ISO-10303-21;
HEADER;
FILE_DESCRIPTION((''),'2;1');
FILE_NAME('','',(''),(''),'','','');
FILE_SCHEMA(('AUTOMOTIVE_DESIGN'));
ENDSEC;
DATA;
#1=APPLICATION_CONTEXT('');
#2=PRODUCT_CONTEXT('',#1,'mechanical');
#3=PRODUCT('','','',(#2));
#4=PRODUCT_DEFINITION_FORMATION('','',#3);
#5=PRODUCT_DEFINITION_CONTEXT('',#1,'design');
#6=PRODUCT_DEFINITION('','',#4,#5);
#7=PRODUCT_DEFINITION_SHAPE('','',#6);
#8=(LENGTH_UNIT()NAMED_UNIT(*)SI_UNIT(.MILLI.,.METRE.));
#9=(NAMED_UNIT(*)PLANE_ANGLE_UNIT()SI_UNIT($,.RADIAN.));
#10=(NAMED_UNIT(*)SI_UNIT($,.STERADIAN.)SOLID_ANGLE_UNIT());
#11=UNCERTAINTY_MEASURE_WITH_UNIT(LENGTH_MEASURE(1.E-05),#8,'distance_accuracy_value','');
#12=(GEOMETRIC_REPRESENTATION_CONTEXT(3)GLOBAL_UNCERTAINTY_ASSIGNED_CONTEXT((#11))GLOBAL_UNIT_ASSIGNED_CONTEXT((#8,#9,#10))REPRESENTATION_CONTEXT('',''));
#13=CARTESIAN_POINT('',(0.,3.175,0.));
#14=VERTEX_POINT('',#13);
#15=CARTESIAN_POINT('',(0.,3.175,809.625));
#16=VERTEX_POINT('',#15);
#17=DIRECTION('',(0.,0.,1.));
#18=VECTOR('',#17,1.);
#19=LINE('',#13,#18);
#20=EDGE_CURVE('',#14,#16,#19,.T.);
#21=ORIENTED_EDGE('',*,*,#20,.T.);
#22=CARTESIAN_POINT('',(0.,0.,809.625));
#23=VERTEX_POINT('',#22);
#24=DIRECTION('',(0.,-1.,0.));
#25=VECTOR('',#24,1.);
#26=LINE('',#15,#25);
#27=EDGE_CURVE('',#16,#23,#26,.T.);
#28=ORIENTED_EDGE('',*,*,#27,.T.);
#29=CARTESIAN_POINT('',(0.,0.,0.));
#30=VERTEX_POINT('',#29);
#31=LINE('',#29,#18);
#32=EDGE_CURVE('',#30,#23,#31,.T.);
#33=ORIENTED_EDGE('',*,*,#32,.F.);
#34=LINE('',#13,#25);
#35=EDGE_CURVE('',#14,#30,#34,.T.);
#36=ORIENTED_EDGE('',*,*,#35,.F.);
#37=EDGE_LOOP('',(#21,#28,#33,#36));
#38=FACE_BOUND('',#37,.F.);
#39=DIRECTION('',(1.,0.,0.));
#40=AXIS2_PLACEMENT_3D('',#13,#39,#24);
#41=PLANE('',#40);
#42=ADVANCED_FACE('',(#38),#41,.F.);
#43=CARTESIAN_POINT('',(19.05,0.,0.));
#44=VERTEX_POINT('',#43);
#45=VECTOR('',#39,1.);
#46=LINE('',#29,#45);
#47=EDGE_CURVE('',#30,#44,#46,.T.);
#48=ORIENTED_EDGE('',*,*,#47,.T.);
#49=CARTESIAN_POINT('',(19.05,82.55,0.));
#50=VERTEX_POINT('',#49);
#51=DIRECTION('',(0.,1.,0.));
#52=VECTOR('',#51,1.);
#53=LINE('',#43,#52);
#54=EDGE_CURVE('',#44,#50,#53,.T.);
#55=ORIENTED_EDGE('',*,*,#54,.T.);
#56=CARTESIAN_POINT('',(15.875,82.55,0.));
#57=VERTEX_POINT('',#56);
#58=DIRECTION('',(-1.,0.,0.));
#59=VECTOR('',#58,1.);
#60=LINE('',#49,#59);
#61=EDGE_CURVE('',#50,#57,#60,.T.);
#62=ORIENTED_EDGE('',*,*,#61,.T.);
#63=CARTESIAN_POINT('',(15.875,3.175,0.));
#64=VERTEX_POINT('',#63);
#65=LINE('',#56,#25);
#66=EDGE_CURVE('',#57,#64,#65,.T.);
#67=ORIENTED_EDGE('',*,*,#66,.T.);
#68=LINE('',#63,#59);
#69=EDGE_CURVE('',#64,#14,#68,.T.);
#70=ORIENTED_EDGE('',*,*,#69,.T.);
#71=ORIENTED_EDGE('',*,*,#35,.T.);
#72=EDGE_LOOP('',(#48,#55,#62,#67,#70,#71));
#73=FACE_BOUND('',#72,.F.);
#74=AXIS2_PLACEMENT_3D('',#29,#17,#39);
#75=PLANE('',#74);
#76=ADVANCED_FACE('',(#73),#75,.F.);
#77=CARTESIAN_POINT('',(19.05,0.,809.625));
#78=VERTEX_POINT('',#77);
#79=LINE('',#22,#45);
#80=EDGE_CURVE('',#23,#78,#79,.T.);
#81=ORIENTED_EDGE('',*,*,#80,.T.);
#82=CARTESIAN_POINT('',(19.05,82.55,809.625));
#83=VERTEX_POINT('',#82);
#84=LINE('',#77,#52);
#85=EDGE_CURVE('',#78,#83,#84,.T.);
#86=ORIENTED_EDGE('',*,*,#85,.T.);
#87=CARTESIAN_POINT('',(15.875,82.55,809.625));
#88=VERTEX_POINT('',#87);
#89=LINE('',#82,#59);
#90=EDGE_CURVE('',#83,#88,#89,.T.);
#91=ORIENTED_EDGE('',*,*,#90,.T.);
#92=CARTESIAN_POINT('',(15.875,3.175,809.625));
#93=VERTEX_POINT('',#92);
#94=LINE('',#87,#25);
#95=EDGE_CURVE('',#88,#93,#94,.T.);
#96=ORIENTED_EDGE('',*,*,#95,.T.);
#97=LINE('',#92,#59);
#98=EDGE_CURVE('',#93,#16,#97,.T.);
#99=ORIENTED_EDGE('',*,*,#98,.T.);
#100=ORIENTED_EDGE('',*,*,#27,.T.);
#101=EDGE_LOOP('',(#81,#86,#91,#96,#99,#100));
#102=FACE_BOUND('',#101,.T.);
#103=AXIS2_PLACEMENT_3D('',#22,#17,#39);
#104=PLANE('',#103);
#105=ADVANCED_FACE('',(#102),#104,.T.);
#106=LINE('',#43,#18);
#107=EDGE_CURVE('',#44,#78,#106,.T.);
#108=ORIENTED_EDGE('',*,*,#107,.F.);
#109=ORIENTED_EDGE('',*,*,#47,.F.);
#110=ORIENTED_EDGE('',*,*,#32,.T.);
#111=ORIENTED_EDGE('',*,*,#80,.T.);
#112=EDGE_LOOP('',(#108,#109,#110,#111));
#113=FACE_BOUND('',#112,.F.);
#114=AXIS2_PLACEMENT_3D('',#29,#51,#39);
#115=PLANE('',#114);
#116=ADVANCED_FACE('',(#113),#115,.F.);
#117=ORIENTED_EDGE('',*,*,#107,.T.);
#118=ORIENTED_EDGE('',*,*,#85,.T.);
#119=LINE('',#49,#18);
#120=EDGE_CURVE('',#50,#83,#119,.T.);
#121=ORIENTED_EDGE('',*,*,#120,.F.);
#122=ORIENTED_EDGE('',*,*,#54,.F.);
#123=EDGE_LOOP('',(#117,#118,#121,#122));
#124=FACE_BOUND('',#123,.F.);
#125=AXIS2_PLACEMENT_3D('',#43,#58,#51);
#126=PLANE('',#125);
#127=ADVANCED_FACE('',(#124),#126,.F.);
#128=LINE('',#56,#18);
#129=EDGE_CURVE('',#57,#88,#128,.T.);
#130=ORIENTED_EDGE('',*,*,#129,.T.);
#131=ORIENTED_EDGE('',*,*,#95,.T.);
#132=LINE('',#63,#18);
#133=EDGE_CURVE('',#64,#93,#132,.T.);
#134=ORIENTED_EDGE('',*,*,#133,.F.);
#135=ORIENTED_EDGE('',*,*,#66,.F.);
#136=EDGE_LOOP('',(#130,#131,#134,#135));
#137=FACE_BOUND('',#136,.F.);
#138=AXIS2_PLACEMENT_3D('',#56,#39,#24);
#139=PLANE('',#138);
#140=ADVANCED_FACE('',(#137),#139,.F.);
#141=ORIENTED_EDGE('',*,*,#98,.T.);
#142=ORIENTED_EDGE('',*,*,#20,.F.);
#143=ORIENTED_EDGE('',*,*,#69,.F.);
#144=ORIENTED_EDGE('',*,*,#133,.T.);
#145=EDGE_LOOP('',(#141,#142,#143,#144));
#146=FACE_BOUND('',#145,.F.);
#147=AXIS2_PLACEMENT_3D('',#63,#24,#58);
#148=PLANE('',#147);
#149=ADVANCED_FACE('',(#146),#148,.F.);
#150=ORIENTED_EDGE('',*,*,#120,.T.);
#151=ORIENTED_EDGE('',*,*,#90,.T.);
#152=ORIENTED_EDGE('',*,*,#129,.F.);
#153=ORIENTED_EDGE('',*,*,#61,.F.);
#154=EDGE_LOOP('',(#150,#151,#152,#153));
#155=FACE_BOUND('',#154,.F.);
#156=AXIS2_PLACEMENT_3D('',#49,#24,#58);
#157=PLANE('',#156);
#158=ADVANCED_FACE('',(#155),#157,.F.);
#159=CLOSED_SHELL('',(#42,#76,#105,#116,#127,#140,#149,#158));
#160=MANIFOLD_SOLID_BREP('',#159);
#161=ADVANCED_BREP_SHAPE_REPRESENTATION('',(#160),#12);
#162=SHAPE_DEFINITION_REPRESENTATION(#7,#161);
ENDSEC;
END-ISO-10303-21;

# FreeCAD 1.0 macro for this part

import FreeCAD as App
import Part
import Sketcher
from FreeCAD import Vector
Q = App.Units.Quantity


def add_polygon(sketch, points):
    """Adds a closed chain of lines whose ends are joined by coincident constraints."""
    first, n = sketch.GeometryCount, len(points)
    for a, b in zip(points, points[1:] + points[:1]):
        sketch.addGeometry(Part.LineSegment(App.Vector(*a, 0), App.Vector(*b, 0)), False)
    for i in range(n):
        sketch.addConstraint(Sketcher.Constraint("Coincident", first + i, 2, first + (i + 1) % n, 1))

doc = App.newDocument("Part")
params = doc.addObject("Spreadsheet::Sheet", "Params")
for row, (alias, value) in enumerate([
    ("sketch1_width", "0.75 in"),
    ("sketch1_height", "3.25 in"),
    ("sketch1_width2", "0.125 in"),
    ("pad1_length", "31.875 in"),
], start=1):
    params.set(f"A{row}", alias)
    params.set(f"B{row}", "=" + value)
    params.setAlias(f"B{row}", alias)

body = doc.addObject("PartDesign::Body", "Body")

# Sketch on XY plane
sketch1 = doc.addObject("Sketcher::SketchObject", "Sketch")
body.addObject(sketch1)
sketch1.AttachmentSupport = (doc.XY_Plane, [""])
sketch1.MapMode = "FlatFace"
add_polygon(sketch1, [(0, 3.2), (0, 0), (19.1, 0), (19.1, 82.5), (15.9, 82.5), (15.9, 3.2)])  # lines 0-5
sketch1.addConstraint([
    Sketcher.Constraint("Vertical", 0),
    Sketcher.Constraint("Horizontal", 1),
    Sketcher.Constraint("Vertical", 2),
    Sketcher.Constraint("Horizontal", 3),
    Sketcher.Constraint("Vertical", 4),
    Sketcher.Constraint("Horizontal", 5),
    Sketcher.Constraint("Coincident", 0, 2, -1, 1),
    Sketcher.Constraint("Equal", 3, 0),
    Sketcher.Constraint("DistanceX", 1, 1, 1, 2, Q("0.75 in")),
    Sketcher.Constraint("DistanceY", 2, 1, 2, 2, Q("3.25 in")),
    Sketcher.Constraint("DistanceX", 3, 2, 3, 1, Q("0.125 in")),
])
sketch1.setExpression("Constraints[14]", "Params.sketch1_width")
sketch1.setExpression("Constraints[15]", "Params.sketch1_height")
sketch1.setExpression("Constraints[16]", "Params.sketch1_width2")
pad1 = doc.addObject("PartDesign::Pad", "Pad")
body.addObject(pad1)
pad1.Profile = sketch1
pad1.setExpression("Length", "Params.pad1_length")

doc.recompute()
